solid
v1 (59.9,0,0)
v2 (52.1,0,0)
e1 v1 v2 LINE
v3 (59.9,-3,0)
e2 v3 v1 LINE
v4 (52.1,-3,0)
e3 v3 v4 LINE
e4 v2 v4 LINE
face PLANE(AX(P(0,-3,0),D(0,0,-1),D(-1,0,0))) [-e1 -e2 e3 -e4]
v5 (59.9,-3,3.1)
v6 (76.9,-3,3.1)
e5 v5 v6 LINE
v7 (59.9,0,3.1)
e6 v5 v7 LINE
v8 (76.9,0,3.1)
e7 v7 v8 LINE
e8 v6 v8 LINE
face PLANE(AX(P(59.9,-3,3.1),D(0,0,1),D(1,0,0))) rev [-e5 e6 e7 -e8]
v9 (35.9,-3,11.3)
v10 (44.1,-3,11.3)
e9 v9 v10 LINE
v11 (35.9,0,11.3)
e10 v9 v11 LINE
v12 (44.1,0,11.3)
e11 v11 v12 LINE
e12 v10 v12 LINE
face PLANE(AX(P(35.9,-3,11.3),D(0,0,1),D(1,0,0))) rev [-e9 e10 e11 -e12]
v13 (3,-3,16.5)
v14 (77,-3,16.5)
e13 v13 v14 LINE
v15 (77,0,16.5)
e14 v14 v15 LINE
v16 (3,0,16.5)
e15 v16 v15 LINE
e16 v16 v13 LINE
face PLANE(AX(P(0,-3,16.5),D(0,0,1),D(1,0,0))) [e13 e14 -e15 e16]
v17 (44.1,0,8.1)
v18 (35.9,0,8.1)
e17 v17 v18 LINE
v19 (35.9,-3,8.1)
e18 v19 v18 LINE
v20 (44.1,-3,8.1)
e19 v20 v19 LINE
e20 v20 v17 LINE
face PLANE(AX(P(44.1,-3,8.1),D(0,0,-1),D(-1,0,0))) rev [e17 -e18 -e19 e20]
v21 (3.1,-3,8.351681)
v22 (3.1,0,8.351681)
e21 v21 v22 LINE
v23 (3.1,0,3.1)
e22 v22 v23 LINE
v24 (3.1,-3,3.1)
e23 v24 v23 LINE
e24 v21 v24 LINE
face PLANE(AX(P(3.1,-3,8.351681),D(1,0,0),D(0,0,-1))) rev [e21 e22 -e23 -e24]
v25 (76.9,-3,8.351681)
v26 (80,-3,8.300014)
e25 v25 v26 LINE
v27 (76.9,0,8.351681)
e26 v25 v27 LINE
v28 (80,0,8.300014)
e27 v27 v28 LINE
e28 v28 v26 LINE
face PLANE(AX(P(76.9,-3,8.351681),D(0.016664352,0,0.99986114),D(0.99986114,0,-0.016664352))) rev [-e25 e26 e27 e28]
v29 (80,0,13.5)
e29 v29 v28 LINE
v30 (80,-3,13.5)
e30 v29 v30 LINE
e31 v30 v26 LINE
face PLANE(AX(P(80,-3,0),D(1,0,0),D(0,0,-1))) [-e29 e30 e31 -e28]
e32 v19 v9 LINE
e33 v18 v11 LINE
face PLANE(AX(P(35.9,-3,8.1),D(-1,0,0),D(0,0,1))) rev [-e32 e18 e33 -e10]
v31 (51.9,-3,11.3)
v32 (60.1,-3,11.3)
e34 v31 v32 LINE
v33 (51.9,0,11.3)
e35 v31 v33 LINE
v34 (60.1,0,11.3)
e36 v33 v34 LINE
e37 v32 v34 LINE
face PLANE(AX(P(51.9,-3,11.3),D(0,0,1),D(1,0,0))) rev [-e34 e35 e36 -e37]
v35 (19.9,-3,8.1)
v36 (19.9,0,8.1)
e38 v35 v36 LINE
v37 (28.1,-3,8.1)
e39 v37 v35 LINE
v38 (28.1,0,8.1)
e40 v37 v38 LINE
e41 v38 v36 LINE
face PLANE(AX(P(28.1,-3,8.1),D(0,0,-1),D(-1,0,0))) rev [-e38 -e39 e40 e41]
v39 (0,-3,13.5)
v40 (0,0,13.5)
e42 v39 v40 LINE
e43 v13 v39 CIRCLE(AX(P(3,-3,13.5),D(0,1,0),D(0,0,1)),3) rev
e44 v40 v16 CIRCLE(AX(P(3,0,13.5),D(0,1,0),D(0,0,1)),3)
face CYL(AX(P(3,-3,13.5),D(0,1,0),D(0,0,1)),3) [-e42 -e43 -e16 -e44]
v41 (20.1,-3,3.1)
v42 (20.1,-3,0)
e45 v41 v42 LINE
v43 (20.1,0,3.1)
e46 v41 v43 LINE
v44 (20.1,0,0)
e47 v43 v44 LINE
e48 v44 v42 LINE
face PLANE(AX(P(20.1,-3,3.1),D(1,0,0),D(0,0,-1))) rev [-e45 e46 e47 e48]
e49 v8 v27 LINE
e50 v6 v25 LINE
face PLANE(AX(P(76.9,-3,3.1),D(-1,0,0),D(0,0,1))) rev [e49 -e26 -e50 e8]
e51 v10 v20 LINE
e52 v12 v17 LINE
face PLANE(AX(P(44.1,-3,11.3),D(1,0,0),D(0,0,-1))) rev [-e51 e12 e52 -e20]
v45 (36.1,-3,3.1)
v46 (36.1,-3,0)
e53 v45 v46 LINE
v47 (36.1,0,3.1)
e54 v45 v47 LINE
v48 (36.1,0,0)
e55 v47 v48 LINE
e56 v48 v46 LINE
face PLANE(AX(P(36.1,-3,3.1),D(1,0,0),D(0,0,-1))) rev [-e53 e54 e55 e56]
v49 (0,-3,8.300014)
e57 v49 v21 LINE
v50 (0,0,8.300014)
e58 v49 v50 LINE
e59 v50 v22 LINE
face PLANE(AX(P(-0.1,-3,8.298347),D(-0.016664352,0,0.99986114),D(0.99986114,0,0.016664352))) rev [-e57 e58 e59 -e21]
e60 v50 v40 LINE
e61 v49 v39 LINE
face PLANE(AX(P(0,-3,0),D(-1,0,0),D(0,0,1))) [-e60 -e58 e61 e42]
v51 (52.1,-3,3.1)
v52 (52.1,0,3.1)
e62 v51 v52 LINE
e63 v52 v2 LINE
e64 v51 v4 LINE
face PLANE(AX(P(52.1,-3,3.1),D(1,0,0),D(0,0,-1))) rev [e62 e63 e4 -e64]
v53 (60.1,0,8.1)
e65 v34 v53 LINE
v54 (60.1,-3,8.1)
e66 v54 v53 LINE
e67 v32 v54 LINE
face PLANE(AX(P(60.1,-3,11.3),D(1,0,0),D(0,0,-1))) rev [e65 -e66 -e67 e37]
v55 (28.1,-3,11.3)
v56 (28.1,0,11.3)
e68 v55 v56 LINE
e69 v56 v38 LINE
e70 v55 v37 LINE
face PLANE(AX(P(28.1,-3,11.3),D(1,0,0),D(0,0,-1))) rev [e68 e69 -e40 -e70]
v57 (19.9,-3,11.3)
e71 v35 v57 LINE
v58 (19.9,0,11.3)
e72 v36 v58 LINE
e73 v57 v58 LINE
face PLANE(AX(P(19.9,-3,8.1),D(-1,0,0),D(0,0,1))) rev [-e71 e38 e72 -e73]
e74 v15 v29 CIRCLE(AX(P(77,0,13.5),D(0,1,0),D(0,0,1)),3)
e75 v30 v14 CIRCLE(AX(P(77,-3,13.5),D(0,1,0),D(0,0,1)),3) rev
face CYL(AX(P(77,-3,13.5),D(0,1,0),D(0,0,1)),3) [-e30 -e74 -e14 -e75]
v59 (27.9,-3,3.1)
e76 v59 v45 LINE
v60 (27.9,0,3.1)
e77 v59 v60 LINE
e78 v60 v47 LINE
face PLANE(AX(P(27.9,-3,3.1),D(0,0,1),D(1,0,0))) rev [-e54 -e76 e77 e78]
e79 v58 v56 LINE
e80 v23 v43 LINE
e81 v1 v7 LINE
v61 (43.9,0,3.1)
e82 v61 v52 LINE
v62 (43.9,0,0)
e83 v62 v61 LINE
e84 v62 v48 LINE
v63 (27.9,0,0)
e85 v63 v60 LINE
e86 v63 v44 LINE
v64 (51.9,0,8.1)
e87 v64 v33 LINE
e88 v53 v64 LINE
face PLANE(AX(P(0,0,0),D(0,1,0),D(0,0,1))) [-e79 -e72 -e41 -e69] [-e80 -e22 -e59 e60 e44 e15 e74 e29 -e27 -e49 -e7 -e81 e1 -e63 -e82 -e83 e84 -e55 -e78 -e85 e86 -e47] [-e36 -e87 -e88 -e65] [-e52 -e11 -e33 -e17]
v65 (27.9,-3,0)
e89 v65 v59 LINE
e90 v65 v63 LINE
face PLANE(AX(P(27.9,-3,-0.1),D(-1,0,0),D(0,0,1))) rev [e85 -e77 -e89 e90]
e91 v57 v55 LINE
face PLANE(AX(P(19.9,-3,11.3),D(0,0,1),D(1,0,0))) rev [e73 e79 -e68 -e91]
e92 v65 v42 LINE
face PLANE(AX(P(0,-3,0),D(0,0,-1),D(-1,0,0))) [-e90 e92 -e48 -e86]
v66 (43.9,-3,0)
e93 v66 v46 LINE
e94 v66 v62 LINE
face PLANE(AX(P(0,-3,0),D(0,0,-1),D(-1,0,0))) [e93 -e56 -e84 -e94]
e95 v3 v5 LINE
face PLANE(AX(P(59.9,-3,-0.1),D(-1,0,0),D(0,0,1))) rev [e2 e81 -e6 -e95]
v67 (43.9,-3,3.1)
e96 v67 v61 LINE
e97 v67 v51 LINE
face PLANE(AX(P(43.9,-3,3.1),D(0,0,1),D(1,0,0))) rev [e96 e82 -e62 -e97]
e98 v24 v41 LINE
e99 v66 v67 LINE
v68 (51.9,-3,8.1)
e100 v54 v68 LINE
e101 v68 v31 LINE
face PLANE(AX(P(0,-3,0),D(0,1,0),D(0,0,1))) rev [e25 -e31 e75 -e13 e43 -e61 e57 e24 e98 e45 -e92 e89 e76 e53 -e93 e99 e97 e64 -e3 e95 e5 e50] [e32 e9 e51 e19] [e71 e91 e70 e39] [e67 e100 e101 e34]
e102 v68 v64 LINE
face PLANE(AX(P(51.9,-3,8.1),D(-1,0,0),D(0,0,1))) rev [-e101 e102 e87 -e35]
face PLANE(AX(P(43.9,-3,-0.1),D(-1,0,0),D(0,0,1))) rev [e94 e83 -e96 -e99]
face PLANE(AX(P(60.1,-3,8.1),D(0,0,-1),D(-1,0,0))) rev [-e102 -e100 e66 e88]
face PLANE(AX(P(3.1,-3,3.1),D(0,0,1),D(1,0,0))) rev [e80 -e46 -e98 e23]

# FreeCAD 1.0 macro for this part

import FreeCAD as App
import Part
import Sketcher
from FreeCAD import Vector


def edges_at(feature, points):
    """Names of the edges that pass closest to the given points."""
    edges = feature.Shape.Edges
    near = lambda p: min(range(len(edges)), key=lambda i: edges[i].distToShape(Part.Vertex(*p))[0])
    return sorted({f"Edge{near(p) + 1}" for p in points})

doc = App.newDocument("Part")
params = doc.addObject("Spreadsheet::Sheet", "Params")
for row, (alias, value) in enumerate([
    ("sketch1_width", "80 mm"),
    ("sketch1_height", "16.5 mm"),
    ("pad1_length", "3 mm"),
    ("sketch2_width", "17 mm"),
    ("sketch2_width2", "8.2 mm"),
    ("sketch2_width3", "20.2 mm"),
    ("sketch2_height", "3.2 mm"),
    ("fillet_radius", "3 mm"),
], start=1):
    params.set(f"A{row}", alias)
    params.set(f"B{row}", "=" + value)
    params.setAlias(f"B{row}", alias)

body = doc.addObject("PartDesign::Body", "Body")

# Sketch on XZ plane
sketch1 = body.newObject("Sketcher::SketchObject", "Sketch")
sketch1.AttachmentSupport = (doc.getObject("XZ_Plane"), [""])
sketch1.MapMode = "FlatFace"
sketch1.addGeometry([
    Part.LineSegment(Vector(0, 0, 0), Vector(0, 16, 0)),
    Part.LineSegment(Vector(0, 16, 0), Vector(80, 16, 0)),
    Part.LineSegment(Vector(80, 16, 0), Vector(80, 0, 0)),
    Part.LineSegment(Vector(80, 0, 0), Vector(0, 0, 0)),
], False)
sketch1.addConstraint([
    Sketcher.Constraint("Coincident", 0, 2, 1, 1),
    Sketcher.Constraint("Coincident", 1, 2, 2, 1),
    Sketcher.Constraint("Coincident", 2, 2, 3, 1),
    Sketcher.Constraint("Coincident", 3, 2, 0, 1),
    Sketcher.Constraint("Vertical", 0),
    Sketcher.Constraint("Horizontal", 1),
    Sketcher.Constraint("Vertical", 2),
    Sketcher.Constraint("Horizontal", 3),
    Sketcher.Constraint("Coincident", 3, 2, -1, 1),
    Sketcher.Constraint("DistanceX", 1, 1, 1, 2, 80.0),
    Sketcher.Constraint("DistanceY", 0, 1, 0, 2, 16.5),
])
sketch1.setExpression("Constraints[9]", "Params.sketch1_width")
sketch1.setExpression("Constraints[10]", "Params.sketch1_height")
pad1 = body.newObject("PartDesign::Pad", "Pad")
pad1.Profile = sketch1
pad1.setExpression("Length", "Params.pad1_length")

# Sketch on XZ plane
sketch2 = body.newObject("Sketcher::SketchObject", "Sketch001")
sketch2.AttachmentSupport = (doc.getObject("XZ_Plane"), [""])
sketch2.MapMode = "FlatFace"
sketch2.addGeometry([
    Part.LineSegment(Vector(19.9, 8.1, 0), Vector(19.9, 11.3, 0)),  # 0
    Part.LineSegment(Vector(19.9, 11.3, 0), Vector(28.1, 11.3, 0)),  # 1
    Part.LineSegment(Vector(28.1, 11.3, 0), Vector(28.1, 8.1, 0)),  # 2
    Part.LineSegment(Vector(28.1, 8.1, 0), Vector(19.9, 8.1, 0)),  # 3
    Part.LineSegment(Vector(35.9, 8.1, 0), Vector(35.9, 11.3, 0)),  # 4
    Part.LineSegment(Vector(35.9, 11.3, 0), Vector(44.1, 11.3, 0)),  # 5
    Part.LineSegment(Vector(44.1, 11.3, 0), Vector(44.1, 8.1, 0)),  # 6
    Part.LineSegment(Vector(44.1, 8.1, 0), Vector(35.9, 8.1, 0)),  # 7
    Part.LineSegment(Vector(27.9, -0.1, 0), Vector(27.9, 3.1, 0)),  # 8
    Part.LineSegment(Vector(27.9, 3.1, 0), Vector(36.1, 3.1, 0)),  # 9
    Part.LineSegment(Vector(36.1, 3.1, 0), Vector(36.1, -0.1, 0)),  # 10
    Part.LineSegment(Vector(36.1, -0.1, 0), Vector(27.9, -0.1, 0)),  # 11
    Part.LineSegment(Vector(51.9, 8.1, 0), Vector(51.9, 11.3, 0)),  # 12
    Part.LineSegment(Vector(51.9, 11.3, 0), Vector(60.1, 11.3, 0)),  # 13
    Part.LineSegment(Vector(60.1, 11.3, 0), Vector(60.1, 8.1, 0)),  # 14
    Part.LineSegment(Vector(60.1, 8.1, 0), Vector(51.9, 8.1, 0)),  # 15
    Part.LineSegment(Vector(43.9, -0.1, 0), Vector(43.9, 3.1, 0)),  # 16
    Part.LineSegment(Vector(43.9, 3.1, 0), Vector(52.1, 3.1, 0)),  # 17
    Part.LineSegment(Vector(52.1, 3.1, 0), Vector(52.1, -0.1, 0)),  # 18
    Part.LineSegment(Vector(52.1, -0.1, 0), Vector(43.9, -0.1, 0)),  # 19
    Part.LineSegment(Vector(76.9, 3.1, 0), Vector(76.9, 8.4, 0)),  # 20
    Part.LineSegment(Vector(76.9, 8.4, 0), Vector(80.1, 8.3, 0)),  # 21
    Part.LineSegment(Vector(80.1, 8.3, 0), Vector(80.1, -0.1, 0)),  # 22
    Part.LineSegment(Vector(80.1, -0.1, 0), Vector(59.9, -0.1, 0)),  # 23
    Part.LineSegment(Vector(59.9, -0.1, 0), Vector(59.9, 3.1, 0)),  # 24
    Part.LineSegment(Vector(59.9, 3.1, 0), Vector(76.9, 3.1, 0)),  # 25
    Part.LineSegment(Vector(-0.1, 8.3, 0), Vector(3.1, 8.4, 0)),  # 26
    Part.LineSegment(Vector(3.1, 8.4, 0), Vector(3.1, 3.1, 0)),  # 27
    Part.LineSegment(Vector(3.1, 3.1, 0), Vector(20.1, 3.1, 0)),  # 28
    Part.LineSegment(Vector(20.1, 3.1, 0), Vector(20.1, -0.1, 0)),  # 29
    Part.LineSegment(Vector(20.1, -0.1, 0), Vector(-0.1, -0.1, 0)),  # 30
    Part.LineSegment(Vector(-0.1, -0.1, 0), Vector(-0.1, 8.3, 0)),  # 31
], False)
sketch2.addConstraint([
    Sketcher.Constraint("Coincident", 0, 2, 1, 1),
    Sketcher.Constraint("Coincident", 1, 2, 2, 1),
    Sketcher.Constraint("Coincident", 2, 2, 3, 1),
    Sketcher.Constraint("Coincident", 3, 2, 0, 1),
    Sketcher.Constraint("Coincident", 4, 2, 5, 1),
    Sketcher.Constraint("Coincident", 5, 2, 6, 1),
    Sketcher.Constraint("Coincident", 6, 2, 7, 1),
    Sketcher.Constraint("Coincident", 7, 2, 4, 1),
    Sketcher.Constraint("Coincident", 8, 2, 9, 1),
    Sketcher.Constraint("Coincident", 9, 2, 10, 1),
    Sketcher.Constraint("Coincident", 10, 2, 11, 1),
    Sketcher.Constraint("Coincident", 11, 2, 8, 1),
    Sketcher.Constraint("Coincident", 12, 2, 13, 1),
    Sketcher.Constraint("Coincident", 13, 2, 14, 1),
    Sketcher.Constraint("Coincident", 14, 2, 15, 1),
    Sketcher.Constraint("Coincident", 15, 2, 12, 1),
    Sketcher.Constraint("Coincident", 16, 2, 17, 1),
    Sketcher.Constraint("Coincident", 17, 2, 18, 1),
    Sketcher.Constraint("Coincident", 18, 2, 19, 1),
    Sketcher.Constraint("Coincident", 19, 2, 16, 1),
    Sketcher.Constraint("Coincident", 20, 2, 21, 1),
    Sketcher.Constraint("Coincident", 21, 2, 22, 1),
    Sketcher.Constraint("Coincident", 22, 2, 23, 1),
    Sketcher.Constraint("Coincident", 23, 2, 24, 1),
    Sketcher.Constraint("Coincident", 24, 2, 25, 1),
    Sketcher.Constraint("Coincident", 25, 2, 20, 1),
    Sketcher.Constraint("Coincident", 26, 2, 27, 1),
    Sketcher.Constraint("Coincident", 27, 2, 28, 1),
    Sketcher.Constraint("Coincident", 28, 2, 29, 1),
    Sketcher.Constraint("Coincident", 29, 2, 30, 1),
    Sketcher.Constraint("Coincident", 30, 2, 31, 1),
    Sketcher.Constraint("Coincident", 31, 2, 26, 1),
    Sketcher.Constraint("Vertical", 0),
    Sketcher.Constraint("Horizontal", 1),
    Sketcher.Constraint("Vertical", 2),
    Sketcher.Constraint("Horizontal", 3),
    Sketcher.Constraint("Vertical", 4),
    Sketcher.Constraint("Horizontal", 5),
    Sketcher.Constraint("Vertical", 6),
    Sketcher.Constraint("Horizontal", 7),
    Sketcher.Constraint("Vertical", 8),
    Sketcher.Constraint("Horizontal", 9),
    Sketcher.Constraint("Vertical", 10),
    Sketcher.Constraint("Horizontal", 11),
    Sketcher.Constraint("Vertical", 12),
    Sketcher.Constraint("Horizontal", 13),
    Sketcher.Constraint("Vertical", 14),
    Sketcher.Constraint("Horizontal", 15),
    Sketcher.Constraint("Vertical", 16),
    Sketcher.Constraint("Horizontal", 17),
    Sketcher.Constraint("Vertical", 18),
    Sketcher.Constraint("Horizontal", 19),
    Sketcher.Constraint("Vertical", 20),
    Sketcher.Constraint("Vertical", 22),
    Sketcher.Constraint("Horizontal", 23),
    Sketcher.Constraint("Vertical", 24),
    Sketcher.Constraint("Horizontal", 25),
    Sketcher.Constraint("Vertical", 27),
    Sketcher.Constraint("Horizontal", 28),
    Sketcher.Constraint("Vertical", 29),
    Sketcher.Constraint("Horizontal", 30),
    Sketcher.Constraint("Vertical", 31),
    Sketcher.Constraint("Horizontal", 1, 2, 4, 2),
    Sketcher.Constraint("Horizontal", 3, 2, 6, 2),
    Sketcher.Constraint("Horizontal", 5, 2, 12, 2),
    Sketcher.Constraint("Horizontal", 7, 2, 14, 2),
    Sketcher.Constraint("Horizontal", 9, 2, 16, 2),
    Sketcher.Constraint("Horizontal", 11, 2, 18, 2),
    Sketcher.Constraint("Horizontal", 19, 2, 22, 2),
    Sketcher.Constraint("Horizontal", 17, 2, 24, 2),
    Sketcher.Constraint("Horizontal", 20, 2, 26, 2),
    Sketcher.Constraint("Horizontal", 25, 2, 27, 2),
    Sketcher.Constraint("Horizontal", 23, 2, 29, 2),
    Sketcher.Constraint("Horizontal", 21, 2, 31, 2),
    Sketcher.Constraint("Equal", 3, 5),
    Sketcher.Constraint("Equal", 7, 9),
    Sketcher.Constraint("Equal", 11, 13),
    Sketcher.Constraint("Equal", 15, 17),
    Sketcher.Constraint("Equal", 25, 28),
    Sketcher.Constraint("Equal", 23, 30),
    Sketcher.Constraint("Equal", 6, 8),
    Sketcher.Constraint("DistanceX", 25, 1, 25, 2, 17.0),
    Sketcher.Constraint("DistanceX", 1, 1, 1, 2, 8.2),
    Sketcher.Constraint("DistanceX", 23, 2, 23, 1, 20.2),
    Sketcher.Constraint("DistanceY", 0, 1, 0, 2, 3.2),
    Sketcher.Constraint("DistanceX", 0, 2, 4, 2, 16.0),
    Sketcher.Constraint("DistanceY", 8, 2, 2, 2, 5.0),
    Sketcher.Constraint("DistanceX", 3, 2, 8, 2, 8.0),
    Sketcher.Constraint("DistanceX", 4, 2, 12, 2, 16.0),
    Sketcher.Constraint("DistanceX", 7, 2, 16, 2, 8.0),
    Sketcher.Constraint("DistanceX", 15, 2, 20, 2, 25.0),
    Sketcher.Constraint("DistanceX", 26, 2, 2, 2, 25.0),
    Sketcher.Constraint("DistanceX", -1, 1, 0, 2, 19.9),
    Sketcher.Constraint("DistanceY", -1, 1, 0, 2, 11.3),
    Sketcher.Constraint("DistanceY", 20, 1, 20, 2, 5.251681),
    Sketcher.Constraint("DistanceY", 22, 2, 22, 1, 8.398347),
])
sketch2.setExpression("Constraints[81]", "Params.sketch2_width")
sketch2.setExpression("Constraints[82]", "Params.sketch2_width2")
sketch2.setExpression("Constraints[83]", "Params.sketch2_width3")
sketch2.setExpression("Constraints[84]", "Params.sketch2_height")
pocket1 = body.newObject("PartDesign::Pocket", "Pocket")
pocket1.Profile = sketch2
pocket1.Type = "ThroughAll"
pocket1.Reversed = True
doc.recompute()

fillet = body.newObject("PartDesign::Fillet", "Fillet")
fillet.Base = (pocket1, edges_at(pocket1, [(80, -1.5, 16.5), (0, -1.5, 16.5)]))
fillet.setExpression("Radius", "Params.fillet_radius")

doc.recompute()
